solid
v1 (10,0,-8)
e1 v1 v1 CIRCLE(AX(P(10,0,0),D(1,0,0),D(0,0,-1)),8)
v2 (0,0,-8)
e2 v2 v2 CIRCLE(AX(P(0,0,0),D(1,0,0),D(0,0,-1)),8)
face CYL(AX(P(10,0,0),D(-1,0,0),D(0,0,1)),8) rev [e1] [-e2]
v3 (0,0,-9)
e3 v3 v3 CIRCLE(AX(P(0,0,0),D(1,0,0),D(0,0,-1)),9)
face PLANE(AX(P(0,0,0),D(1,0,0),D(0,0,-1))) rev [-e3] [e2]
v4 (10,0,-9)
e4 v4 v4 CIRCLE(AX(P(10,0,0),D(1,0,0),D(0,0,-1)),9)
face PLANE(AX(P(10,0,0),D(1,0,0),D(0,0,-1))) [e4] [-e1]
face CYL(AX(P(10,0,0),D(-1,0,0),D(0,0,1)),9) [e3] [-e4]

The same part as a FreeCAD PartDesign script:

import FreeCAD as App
import Part
import Sketcher

V = App.Vector
Q = App.Units.Quantity

doc = App.newDocument("Part")
body = doc.addObject("PartDesign::Body", "Body")

sketch1 = body.newObject("Sketcher::SketchObject", "Sketch")
sketch1.AttachmentSupport = (doc.getObject("YZ_Plane"), [""])
sketch1.MapMode = "FlatFace"
sketch1.addGeometry([
    Part.Circle(V(0, 0, 0), V(0, 0, 1), 9),
    Part.Circle(V(0, 0, 0), V(0, 0, 1), 8),
], False)
sketch1.addConstraint([
    Sketcher.Constraint("Coincident", 0, 3, -1, 1),
    Sketcher.Constraint("Coincident", 1, 3, -1, 1),
    Sketcher.Constraint("Diameter", 0, Q("18 mm")),
    Sketcher.Constraint("Diameter", 1, Q("16 mm")),
])
pad1 = body.newObject("PartDesign::Pad", "Pad")
pad1.Profile = sketch1
pad1.Length = 10

doc.recompute()
